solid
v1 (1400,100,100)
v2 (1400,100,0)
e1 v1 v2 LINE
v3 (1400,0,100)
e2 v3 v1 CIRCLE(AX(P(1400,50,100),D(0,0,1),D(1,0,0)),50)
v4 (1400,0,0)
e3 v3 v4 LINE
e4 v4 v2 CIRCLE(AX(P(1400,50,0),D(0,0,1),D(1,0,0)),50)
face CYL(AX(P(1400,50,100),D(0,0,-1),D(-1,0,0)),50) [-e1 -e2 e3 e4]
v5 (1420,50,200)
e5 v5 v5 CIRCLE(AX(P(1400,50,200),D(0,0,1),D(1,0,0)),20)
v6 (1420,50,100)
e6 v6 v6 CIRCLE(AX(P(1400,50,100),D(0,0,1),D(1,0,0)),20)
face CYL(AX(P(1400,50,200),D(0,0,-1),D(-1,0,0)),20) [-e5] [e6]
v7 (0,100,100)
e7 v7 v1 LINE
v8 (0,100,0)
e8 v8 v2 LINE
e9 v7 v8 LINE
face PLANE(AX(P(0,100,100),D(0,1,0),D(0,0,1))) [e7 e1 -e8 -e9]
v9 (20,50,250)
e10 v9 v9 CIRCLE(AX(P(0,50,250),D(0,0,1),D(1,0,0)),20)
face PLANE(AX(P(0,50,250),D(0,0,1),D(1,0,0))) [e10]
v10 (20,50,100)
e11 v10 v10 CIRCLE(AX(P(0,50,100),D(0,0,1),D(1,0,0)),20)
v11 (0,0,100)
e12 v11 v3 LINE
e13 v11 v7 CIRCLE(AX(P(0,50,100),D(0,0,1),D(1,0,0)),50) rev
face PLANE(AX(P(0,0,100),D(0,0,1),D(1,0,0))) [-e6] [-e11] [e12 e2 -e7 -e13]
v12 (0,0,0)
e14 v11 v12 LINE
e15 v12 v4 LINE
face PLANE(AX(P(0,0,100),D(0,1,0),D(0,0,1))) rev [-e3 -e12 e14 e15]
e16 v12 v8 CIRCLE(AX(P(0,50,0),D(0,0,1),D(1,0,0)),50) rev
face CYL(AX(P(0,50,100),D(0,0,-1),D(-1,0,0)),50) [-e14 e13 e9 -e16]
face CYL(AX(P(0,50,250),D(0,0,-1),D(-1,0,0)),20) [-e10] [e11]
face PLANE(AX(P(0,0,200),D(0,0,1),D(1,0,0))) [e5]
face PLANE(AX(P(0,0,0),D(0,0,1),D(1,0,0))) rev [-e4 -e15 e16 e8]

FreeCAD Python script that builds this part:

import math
import FreeCAD as App
import Part
import Sketcher
from FreeCAD import Vector

doc = App.newDocument("Part")
body = doc.addObject("PartDesign::Body", "Body")

# Sketch on XY plane
sketch1 = body.newObject("Sketcher::SketchObject", "Sketch")
sketch1.AttachmentSupport = (doc.getObject("XY_Plane"), [""])
sketch1.MapMode = "FlatFace"
sketch1.addGeometry([
    Part.LineSegment(Vector(0, 0, 0), Vector(1400, 0, 0)),
    Part.ArcOfCircle(Part.Circle(Vector(1400, 50, 0), Vector(0, 0, 1), 50), math.radians(-90), math.radians(90)),
    Part.LineSegment(Vector(1400, 100, 0), Vector(0, 100, 0)),
    Part.ArcOfCircle(Part.Circle(Vector(0, 50, 0), Vector(0, 0, 1), 50), math.radians(90), math.radians(270)),
], False)
sketch1.addConstraint([
    Sketcher.Constraint("Tangent", 0, 2, 1, 1),
    Sketcher.Constraint("Tangent", 1, 2, 2, 1),
    Sketcher.Constraint("Tangent", 2, 2, 3, 1),
    Sketcher.Constraint("Tangent", 3, 2, 0, 1),
    Sketcher.Constraint("Horizontal", 0),
    Sketcher.Constraint("Horizontal", 2),
    Sketcher.Constraint("Coincident", 3, 2, -1, 1),
    Sketcher.Constraint("Radius", 1, 50.0),
    Sketcher.Constraint("DistanceX", 0, 1, 0, 2, 1400.0),
])
pad1 = body.newObject("PartDesign::Pad", "Pad")
pad1.Profile = sketch1
pad1.Length = 100

# Sketch on XY plane
sketch2 = body.newObject("Sketcher::SketchObject", "Sketch001")
sketch2.AttachmentSupport = (doc.getObject("XY_Plane"), [""])
sketch2.MapMode = "FlatFace"
sketch2.AttachmentOffset = App.Placement(Vector(0, 0, 100), App.Rotation())
sketch2.addGeometry(Part.Circle(Vector(0, 50, 0), Vector(0, 0, 1), 20), False)
sketch2.addConstraint([
    Sketcher.Constraint("PointOnObject", 0, 3, -2),
    Sketcher.Constraint("Diameter", 0, 40.0),
    Sketcher.Constraint("DistanceY", -1, 1, 0, 3, 50.0),
])
pad2 = body.newObject("PartDesign::Pad", "Pad001")
pad2.Profile = sketch2
pad2.Length = 150

# Sketch on XY plane
sketch3 = body.newObject("Sketcher::SketchObject", "Sketch002")
sketch3.AttachmentSupport = (doc.getObject("XY_Plane"), [""])
sketch3.MapMode = "FlatFace"
sketch3.AttachmentOffset = App.Placement(Vector(0, 0, 100), App.Rotation())
sketch3.addGeometry(Part.Circle(Vector(1400, 50, 0), Vector(0, 0, 1), 20), False)
sketch3.addConstraint([
    Sketcher.Constraint("Diameter", 0, 40.0),
    Sketcher.Constraint("DistanceX", -1, 1, 0, 3, 1400.0),
    Sketcher.Constraint("DistanceY", -1, 1, 0, 3, 50.0),
])
pad3 = body.newObject("PartDesign::Pad", "Pad002")
pad3.Profile = sketch3
pad3.Length = 100

doc.recompute()
